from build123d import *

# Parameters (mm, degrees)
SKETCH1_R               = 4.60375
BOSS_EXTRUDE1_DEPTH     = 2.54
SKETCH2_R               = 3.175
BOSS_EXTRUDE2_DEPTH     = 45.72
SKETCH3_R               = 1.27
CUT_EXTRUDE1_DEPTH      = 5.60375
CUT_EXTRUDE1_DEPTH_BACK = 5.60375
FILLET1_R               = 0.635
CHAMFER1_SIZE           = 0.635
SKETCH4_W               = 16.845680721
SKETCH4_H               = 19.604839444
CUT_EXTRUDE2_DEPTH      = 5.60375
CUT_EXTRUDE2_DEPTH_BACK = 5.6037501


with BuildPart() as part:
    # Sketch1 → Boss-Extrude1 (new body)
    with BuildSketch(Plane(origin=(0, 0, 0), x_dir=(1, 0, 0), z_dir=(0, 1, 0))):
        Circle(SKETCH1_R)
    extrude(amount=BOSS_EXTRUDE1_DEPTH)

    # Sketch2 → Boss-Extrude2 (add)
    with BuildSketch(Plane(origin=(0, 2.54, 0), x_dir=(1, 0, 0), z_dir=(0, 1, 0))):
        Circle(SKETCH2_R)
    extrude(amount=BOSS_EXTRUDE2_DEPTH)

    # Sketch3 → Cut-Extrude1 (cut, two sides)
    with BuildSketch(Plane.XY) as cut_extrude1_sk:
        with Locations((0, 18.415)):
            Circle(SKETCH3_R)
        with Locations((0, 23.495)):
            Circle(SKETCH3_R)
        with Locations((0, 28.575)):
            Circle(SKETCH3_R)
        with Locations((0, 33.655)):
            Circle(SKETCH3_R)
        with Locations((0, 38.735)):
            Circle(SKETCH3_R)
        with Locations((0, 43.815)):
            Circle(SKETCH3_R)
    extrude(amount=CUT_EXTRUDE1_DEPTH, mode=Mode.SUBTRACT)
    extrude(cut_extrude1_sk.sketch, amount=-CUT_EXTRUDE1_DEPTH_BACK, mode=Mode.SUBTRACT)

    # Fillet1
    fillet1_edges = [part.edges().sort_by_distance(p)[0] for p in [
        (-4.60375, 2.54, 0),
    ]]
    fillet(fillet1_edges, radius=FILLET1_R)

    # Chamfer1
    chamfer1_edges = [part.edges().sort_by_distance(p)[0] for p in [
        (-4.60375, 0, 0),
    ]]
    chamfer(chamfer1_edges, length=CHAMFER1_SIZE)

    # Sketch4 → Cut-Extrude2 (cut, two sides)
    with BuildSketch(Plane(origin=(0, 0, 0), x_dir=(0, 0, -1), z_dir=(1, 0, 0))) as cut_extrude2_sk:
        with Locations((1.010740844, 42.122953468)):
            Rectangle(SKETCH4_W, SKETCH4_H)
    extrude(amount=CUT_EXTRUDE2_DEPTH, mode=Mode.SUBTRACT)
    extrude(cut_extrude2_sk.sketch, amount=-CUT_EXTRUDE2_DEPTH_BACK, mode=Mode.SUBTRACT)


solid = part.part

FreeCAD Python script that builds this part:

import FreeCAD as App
import Part
import Sketcher
Q = App.Units.Quantity


def edges_at(feature, points):
    """Names of the edges that pass closest to the given points."""
    edges = feature.Shape.Edges
    near = lambda p: min(range(len(edges)), key=lambda i: edges[i].distToShape(Part.Vertex(*p))[0])
    return sorted({f"Edge{near(p) + 1}" for p in points})

doc = App.newDocument("Part")
params = doc.addObject("Spreadsheet::Sheet", "Params")
for row, (alias, value) in enumerate([
    ("pad1_length", "0.1 in"),
    ("sketch2_diameter", "0.25 in"),
    ("pad2_length", "1.8 in"),
    ("sketch3_diameter", "0.1 in"),
    ("fillet_radius", "0.025 in"),
    ("chamfer_size", "0.025 in"),
], start=1):
    params.set(f"A{row}", alias)
    params.set(f"B{row}", "=" + value)
    params.setAlias(f"B{row}", alias)

body = doc.addObject("PartDesign::Body", "Body")

# Sketch on XZ plane
sketch1 = body.newObject("Sketcher::SketchObject", "Sketch")
sketch1.AttachmentSupport = (doc.getObject("XZ_Plane"), [""])
sketch1.MapMode = "FlatFace"
sketch1.addGeometry(Part.Circle(App.Vector(0, 0, 0), App.Vector(0, 0, 1), 4.6), False)
sketch1.addConstraint(Sketcher.Constraint("Coincident", 0, 3, -1, 1))
sketch1.addConstraint(Sketcher.Constraint("Diameter", 0, Q("0.3625 in")))
pad1 = body.newObject("PartDesign::Pad", "Pad")
pad1.Profile = sketch1
pad1.setExpression("Length", "Params.pad1_length")
pad1.Reversed = True

# Sketch on XZ plane
sketch2 = body.newObject("Sketcher::SketchObject", "Sketch001")
sketch2.AttachmentSupport = (doc.getObject("XZ_Plane"), [""])
sketch2.MapMode = "FlatFace"
sketch2.AttachmentOffset = App.Placement(App.Vector(0, 0, -0.1 * 25.4), App.Rotation())
sketch2.addGeometry(Part.Circle(App.Vector(0, 0, 0), App.Vector(0, 0, 1), 3.2), False)
sketch2.addConstraint(Sketcher.Constraint("Coincident", 0, 3, -1, 1))
sketch2.addConstraint(Sketcher.Constraint("Diameter", 0, Q("0.25 in")))
sketch2.setExpression("Constraints[1]", "Params.sketch2_diameter")
pad2 = body.newObject("PartDesign::Pad", "Pad001")
pad2.Profile = sketch2
pad2.setExpression("Length", "Params.pad2_length")
pad2.Reversed = True

# Sketch on XY plane
sketch3 = body.newObject("Sketcher::SketchObject", "Sketch002")
sketch3.AttachmentSupport = (doc.getObject("XY_Plane"), [""])
sketch3.MapMode = "FlatFace"
sketch3.addGeometry(Part.Circle(App.Vector(0, 18.4, 0), App.Vector(0, 0, 1), 1.3), False)
sketch3.addGeometry(Part.Circle(App.Vector(0, 23.5, 0), App.Vector(0, 0, 1), 1.3), False)
sketch3.addGeometry(Part.Circle(App.Vector(0, 28.6, 0), App.Vector(0, 0, 1), 1.3), False)
sketch3.addGeometry(Part.Circle(App.Vector(0, 33.7, 0), App.Vector(0, 0, 1), 1.3), False)
sketch3.addGeometry(Part.Circle(App.Vector(0, 38.7, 0), App.Vector(0, 0, 1), 1.3), False)
sketch3.addGeometry(Part.Circle(App.Vector(0, 43.8, 0), App.Vector(0, 0, 1), 1.3), False)
sketch3.addConstraint(Sketcher.Constraint("Equal", 0, 1))
sketch3.addConstraint(Sketcher.Constraint("Equal", 1, 2))
sketch3.addConstraint(Sketcher.Constraint("Equal", 2, 3))
sketch3.addConstraint(Sketcher.Constraint("Equal", 3, 4))
sketch3.addConstraint(Sketcher.Constraint("Equal", 4, 5))
sketch3.addConstraint(Sketcher.Constraint("PointOnObject", 0, 3, -2))
sketch3.addConstraint(Sketcher.Constraint("PointOnObject", 1, 3, -2))
sketch3.addConstraint(Sketcher.Constraint("PointOnObject", 2, 3, -2))
sketch3.addConstraint(Sketcher.Constraint("PointOnObject", 3, 3, -2))
sketch3.addConstraint(Sketcher.Constraint("PointOnObject", 4, 3, -2))
sketch3.addConstraint(Sketcher.Constraint("PointOnObject", 5, 3, -2))
sketch3.addConstraint(Sketcher.Constraint("Diameter", 0, Q("0.1 in")))
sketch3.addConstraint(Sketcher.Constraint("DistanceY", 0, 3, 5, 3, Q("1 in")))
sketch3.addConstraint(Sketcher.Constraint("DistanceY", 0, 3, 1, 3, Q("0.2 in")))
sketch3.addConstraint(Sketcher.Constraint("DistanceY", 1, 3, 2, 3, Q("0.2 in")))
sketch3.addConstraint(Sketcher.Constraint("DistanceY", 2, 3, 3, 3, Q("0.2 in")))
sketch3.addConstraint(Sketcher.Constraint("DistanceY", 3, 3, 4, 3, Q("0.2 in")))
sketch3.addConstraint(Sketcher.Constraint("DistanceY", -1, 1, 0, 3, Q("0.725 in")))
sketch3.setExpression("Constraints[11]", "Params.sketch3_diameter")
pocket1 = body.newObject("PartDesign::Pocket", "Pocket")
pocket1.Profile = sketch3
pocket1.Type = "ThroughAll"
pocket1.Midplane = True
doc.recompute()

fillet = body.newObject("PartDesign::Fillet", "Fillet")
fillet.Base = (pocket1, edges_at(pocket1, [(-4.604, 2.54, 0)]))
fillet.setExpression("Radius", "Params.fillet_radius")
doc.recompute()

chamfer = body.newObject("PartDesign::Chamfer", "Chamfer")
chamfer.Base = (fillet, edges_at(fillet, [(-4.604, 0, 0)]))
chamfer.setExpression("Size", "Params.chamfer_size")

# Sketch on YZ plane
sketch4 = body.newObject("Sketcher::SketchObject", "Sketch003")
sketch4.AttachmentSupport = (doc.getObject("YZ_Plane"), [""])
sketch4.MapMode = "FlatFace"
sketch4.addGeometry(Part.LineSegment(App.Vector(52, 7, 0), App.Vector(32, 7, 0)), False)
sketch4.addGeometry(Part.LineSegment(App.Vector(32, 7, 0), App.Vector(32, -9, 0)), False)
sketch4.addGeometry(Part.LineSegment(App.Vector(32, -9, 0), App.Vector(52, -9, 0)), False)
sketch4.addGeometry(Part.LineSegment(App.Vector(52, -9, 0), App.Vector(52, 7, 0)), False)
sketch4.addConstraint(Sketcher.Constraint("Coincident", 0, 2, 1, 1))
sketch4.addConstraint(Sketcher.Constraint("Coincident", 1, 2, 2, 1))
sketch4.addConstraint(Sketcher.Constraint("Coincident", 2, 2, 3, 1))
sketch4.addConstraint(Sketcher.Constraint("Coincident", 3, 2, 0, 1))
sketch4.addConstraint(Sketcher.Constraint("Horizontal", 0))
sketch4.addConstraint(Sketcher.Constraint("Vertical", 1))
sketch4.addConstraint(Sketcher.Constraint("Horizontal", 2))
sketch4.addConstraint(Sketcher.Constraint("Vertical", 3))
sketch4.addConstraint(Sketcher.Constraint("DistanceX", 0, 2, 0, 1, 19.604839))
sketch4.addConstraint(Sketcher.Constraint("DistanceY", 1, 2, 1, 1, 16.845681))
sketch4.addConstraint(Sketcher.Constraint("DistanceY", -1, 1, 0, 2, 7.4121))
sketch4.addConstraint(Sketcher.Constraint("DistanceX", -1, 1, 0, 2, 32.320534))
pocket2 = body.newObject("PartDesign::Pocket", "Pocket001")
pocket2.Profile = sketch4
pocket2.Type = "ThroughAll"
pocket2.Midplane = True

doc.recompute()
